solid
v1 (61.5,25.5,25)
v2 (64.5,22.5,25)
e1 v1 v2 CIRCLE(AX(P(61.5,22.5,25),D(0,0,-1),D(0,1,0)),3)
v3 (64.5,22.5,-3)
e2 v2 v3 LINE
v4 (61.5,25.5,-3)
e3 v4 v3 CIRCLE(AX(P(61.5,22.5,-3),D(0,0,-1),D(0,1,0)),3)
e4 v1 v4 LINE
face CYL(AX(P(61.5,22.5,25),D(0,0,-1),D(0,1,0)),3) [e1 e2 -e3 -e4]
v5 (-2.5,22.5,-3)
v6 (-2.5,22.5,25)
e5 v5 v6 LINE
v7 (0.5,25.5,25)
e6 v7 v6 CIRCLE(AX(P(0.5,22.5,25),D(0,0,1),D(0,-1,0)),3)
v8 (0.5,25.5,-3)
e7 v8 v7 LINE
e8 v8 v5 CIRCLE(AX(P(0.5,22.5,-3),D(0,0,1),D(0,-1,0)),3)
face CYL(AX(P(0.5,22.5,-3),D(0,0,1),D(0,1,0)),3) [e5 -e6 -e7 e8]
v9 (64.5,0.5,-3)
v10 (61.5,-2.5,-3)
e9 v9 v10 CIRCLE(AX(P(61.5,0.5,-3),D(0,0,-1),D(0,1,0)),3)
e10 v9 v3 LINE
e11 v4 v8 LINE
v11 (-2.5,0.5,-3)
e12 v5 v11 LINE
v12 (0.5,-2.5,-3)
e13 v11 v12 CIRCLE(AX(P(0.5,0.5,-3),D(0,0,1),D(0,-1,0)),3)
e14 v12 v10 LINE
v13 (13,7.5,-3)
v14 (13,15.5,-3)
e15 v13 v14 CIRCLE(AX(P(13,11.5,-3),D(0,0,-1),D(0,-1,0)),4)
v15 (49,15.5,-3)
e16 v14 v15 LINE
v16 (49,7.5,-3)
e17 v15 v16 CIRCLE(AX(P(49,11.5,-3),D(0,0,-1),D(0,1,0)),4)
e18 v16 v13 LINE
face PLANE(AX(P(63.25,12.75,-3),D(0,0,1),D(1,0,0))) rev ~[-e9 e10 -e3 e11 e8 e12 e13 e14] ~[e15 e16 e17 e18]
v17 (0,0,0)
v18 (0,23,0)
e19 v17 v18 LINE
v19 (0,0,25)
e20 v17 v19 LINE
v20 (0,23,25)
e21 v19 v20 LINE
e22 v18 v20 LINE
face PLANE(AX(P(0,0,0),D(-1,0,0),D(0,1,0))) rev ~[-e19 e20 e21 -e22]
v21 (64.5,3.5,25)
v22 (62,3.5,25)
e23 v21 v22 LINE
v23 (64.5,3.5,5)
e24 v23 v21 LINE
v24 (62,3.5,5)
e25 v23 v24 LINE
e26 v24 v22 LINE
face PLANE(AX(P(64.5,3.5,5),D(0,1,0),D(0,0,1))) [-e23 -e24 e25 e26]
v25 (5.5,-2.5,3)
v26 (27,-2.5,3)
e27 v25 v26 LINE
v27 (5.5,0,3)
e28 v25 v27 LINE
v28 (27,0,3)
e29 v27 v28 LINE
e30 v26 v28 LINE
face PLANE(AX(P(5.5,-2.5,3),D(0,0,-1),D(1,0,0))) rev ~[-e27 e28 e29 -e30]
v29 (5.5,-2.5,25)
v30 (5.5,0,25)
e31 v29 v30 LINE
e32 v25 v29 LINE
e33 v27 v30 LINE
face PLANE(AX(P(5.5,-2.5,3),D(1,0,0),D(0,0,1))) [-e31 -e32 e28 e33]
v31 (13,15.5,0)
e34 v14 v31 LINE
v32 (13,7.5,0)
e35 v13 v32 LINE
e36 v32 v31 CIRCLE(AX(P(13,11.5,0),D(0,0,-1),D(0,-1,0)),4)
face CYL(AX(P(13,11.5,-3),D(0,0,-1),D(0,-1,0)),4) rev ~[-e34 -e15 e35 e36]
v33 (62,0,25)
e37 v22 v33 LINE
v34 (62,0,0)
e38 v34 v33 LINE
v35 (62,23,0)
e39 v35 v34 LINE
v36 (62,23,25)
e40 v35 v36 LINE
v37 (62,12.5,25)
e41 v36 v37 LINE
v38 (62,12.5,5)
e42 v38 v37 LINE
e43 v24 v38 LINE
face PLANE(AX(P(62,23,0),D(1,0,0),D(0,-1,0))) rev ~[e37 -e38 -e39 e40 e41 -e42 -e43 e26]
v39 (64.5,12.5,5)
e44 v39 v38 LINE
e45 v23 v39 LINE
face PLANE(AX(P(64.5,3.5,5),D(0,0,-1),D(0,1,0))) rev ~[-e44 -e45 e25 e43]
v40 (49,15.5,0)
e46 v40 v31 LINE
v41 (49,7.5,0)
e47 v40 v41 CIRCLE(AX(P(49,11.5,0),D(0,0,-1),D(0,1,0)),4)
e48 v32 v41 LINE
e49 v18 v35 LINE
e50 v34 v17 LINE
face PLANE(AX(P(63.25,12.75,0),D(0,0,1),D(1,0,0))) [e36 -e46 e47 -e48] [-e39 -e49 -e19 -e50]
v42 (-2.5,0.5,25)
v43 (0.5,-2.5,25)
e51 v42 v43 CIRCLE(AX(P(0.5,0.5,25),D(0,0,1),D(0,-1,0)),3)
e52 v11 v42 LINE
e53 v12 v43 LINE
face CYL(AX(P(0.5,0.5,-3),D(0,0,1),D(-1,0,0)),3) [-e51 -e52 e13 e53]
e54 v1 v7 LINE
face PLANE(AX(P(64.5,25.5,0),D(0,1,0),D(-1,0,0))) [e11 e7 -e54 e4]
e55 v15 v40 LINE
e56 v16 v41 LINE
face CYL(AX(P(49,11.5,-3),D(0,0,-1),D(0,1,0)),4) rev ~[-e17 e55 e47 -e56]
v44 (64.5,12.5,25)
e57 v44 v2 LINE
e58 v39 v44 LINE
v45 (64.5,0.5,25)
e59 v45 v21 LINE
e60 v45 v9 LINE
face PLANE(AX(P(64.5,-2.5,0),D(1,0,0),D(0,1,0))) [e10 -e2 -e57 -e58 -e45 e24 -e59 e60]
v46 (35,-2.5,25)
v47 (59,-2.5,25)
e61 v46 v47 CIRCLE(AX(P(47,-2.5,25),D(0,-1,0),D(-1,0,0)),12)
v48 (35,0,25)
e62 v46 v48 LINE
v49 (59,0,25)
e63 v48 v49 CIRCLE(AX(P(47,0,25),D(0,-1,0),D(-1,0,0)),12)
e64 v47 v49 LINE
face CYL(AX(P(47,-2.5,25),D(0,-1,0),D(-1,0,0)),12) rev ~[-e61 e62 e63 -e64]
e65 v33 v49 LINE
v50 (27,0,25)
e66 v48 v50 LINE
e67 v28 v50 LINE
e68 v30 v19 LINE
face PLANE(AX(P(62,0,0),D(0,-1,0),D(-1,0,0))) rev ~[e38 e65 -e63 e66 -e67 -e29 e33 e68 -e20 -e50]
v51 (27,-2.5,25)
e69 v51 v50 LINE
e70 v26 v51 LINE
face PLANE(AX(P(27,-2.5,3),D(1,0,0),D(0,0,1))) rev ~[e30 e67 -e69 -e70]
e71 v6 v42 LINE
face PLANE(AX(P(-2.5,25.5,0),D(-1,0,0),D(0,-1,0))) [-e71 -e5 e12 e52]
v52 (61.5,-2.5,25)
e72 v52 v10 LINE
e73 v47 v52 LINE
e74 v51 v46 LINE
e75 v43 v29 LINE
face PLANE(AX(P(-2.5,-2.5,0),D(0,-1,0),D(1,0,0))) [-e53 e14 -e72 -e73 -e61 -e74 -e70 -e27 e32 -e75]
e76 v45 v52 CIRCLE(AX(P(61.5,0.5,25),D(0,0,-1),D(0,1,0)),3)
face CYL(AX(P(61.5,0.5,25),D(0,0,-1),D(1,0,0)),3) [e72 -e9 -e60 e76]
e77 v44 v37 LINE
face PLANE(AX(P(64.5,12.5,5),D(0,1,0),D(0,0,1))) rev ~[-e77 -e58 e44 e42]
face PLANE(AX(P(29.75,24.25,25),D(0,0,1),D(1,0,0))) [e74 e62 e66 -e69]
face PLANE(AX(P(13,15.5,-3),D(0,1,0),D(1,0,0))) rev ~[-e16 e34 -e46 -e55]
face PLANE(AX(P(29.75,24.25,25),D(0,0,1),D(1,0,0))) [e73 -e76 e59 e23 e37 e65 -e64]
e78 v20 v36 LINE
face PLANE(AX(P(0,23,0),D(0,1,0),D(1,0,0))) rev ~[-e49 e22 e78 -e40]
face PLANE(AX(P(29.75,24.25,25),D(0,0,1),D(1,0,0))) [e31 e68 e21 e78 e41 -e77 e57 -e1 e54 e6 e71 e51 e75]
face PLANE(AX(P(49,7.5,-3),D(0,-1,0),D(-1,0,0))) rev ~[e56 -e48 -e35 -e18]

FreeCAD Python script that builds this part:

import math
import FreeCAD as App
import Part
import Sketcher
Q = App.Units.Quantity


def edges_at(feature, points):
    """Names of the edges that pass closest to the given points."""
    edges = feature.Shape.Edges
    near = lambda p: min(range(len(edges)), key=lambda i: edges[i].distToShape(Part.Vertex(*p))[0])
    return sorted({f"Edge{near(p) + 1}" for p in points})

doc = App.newDocument("Part")
params = doc.addObject("Spreadsheet::Sheet", "Params")
for row, (alias, value) in enumerate([
    ("sketch1_width", "67 mm"),
    ("sketch1_width2", "62 mm"),
    ("sketch1_height", "28 mm"),
    ("sketch1_height2", "23 mm"),
    ("pad1_length", "25 mm"),
    ("sketch2_width", "67 mm"),
    ("sketch2_height", "28 mm"),
    ("pad2_length", "3 mm"),
    ("sketch3_radius", "4 mm"),
    ("sketch3_width", "36 mm"),
    ("pocket1_length", "25 mm"),
    ("sketch4_radius", "12 mm"),
    ("sketch4_height", "22 mm"),
    ("sketch4_width", "21.5 mm"),
    ("pocket2_length", "3 mm"),
    ("sketch5_width", "9 mm"),
    ("sketch5_height", "20 mm"),
    ("pocket3_length", "5 mm"),
    ("fillet_radius", "3 mm"),
], start=1):
    params.set(f"A{row}", alias)
    params.set(f"B{row}", "=" + value)
    params.setAlias(f"B{row}", alias)

body = doc.addObject("PartDesign::Body", "Body")

# Sketch on XY plane
sketch1 = body.newObject("Sketcher::SketchObject", "Sketch")
sketch1.AttachmentSupport = (doc.getObject("XY_Plane"), [""])
sketch1.MapMode = "FlatFace"
sketch1.addGeometry([
    Part.LineSegment(App.Vector(-2.5, 25.5, 0), App.Vector(-2.5, -2.5, 0)),  # 0
    Part.LineSegment(App.Vector(-2.5, -2.5, 0), App.Vector(64.5, -2.5, 0)),  # 1
    Part.LineSegment(App.Vector(64.5, -2.5, 0), App.Vector(64.5, 25.5, 0)),  # 2
    Part.LineSegment(App.Vector(64.5, 25.5, 0), App.Vector(-2.5, 25.5, 0)),  # 3
    Part.LineSegment(App.Vector(0, 23, 0), App.Vector(62, 23, 0)),  # 4
    Part.LineSegment(App.Vector(62, 23, 0), App.Vector(62, 0, 0)),  # 5
    Part.LineSegment(App.Vector(62, 0, 0), App.Vector(0, 0, 0)),  # 6
    Part.LineSegment(App.Vector(0, 0, 0), App.Vector(0, 23, 0)),  # 7
], False)
sketch1.addConstraint([
    Sketcher.Constraint("Coincident", 0, 2, 1, 1),
    Sketcher.Constraint("Coincident", 1, 2, 2, 1),
    Sketcher.Constraint("Coincident", 2, 2, 3, 1),
    Sketcher.Constraint("Coincident", 3, 2, 0, 1),
    Sketcher.Constraint("Coincident", 4, 2, 5, 1),
    Sketcher.Constraint("Coincident", 5, 2, 6, 1),
    Sketcher.Constraint("Coincident", 6, 2, 7, 1),
    Sketcher.Constraint("Coincident", 7, 2, 4, 1),
    Sketcher.Constraint("Vertical", 0),
    Sketcher.Constraint("Horizontal", 1),
    Sketcher.Constraint("Vertical", 2),
    Sketcher.Constraint("Horizontal", 3),
    Sketcher.Constraint("Horizontal", 4),
    Sketcher.Constraint("Vertical", 5),
    Sketcher.Constraint("Horizontal", 6),
    Sketcher.Constraint("Vertical", 7),
    Sketcher.Constraint("Coincident", 6, 2, -1, 1),
    Sketcher.Constraint("DistanceX", 1, 1, 1, 2, Q("67 mm")),
    Sketcher.Constraint("DistanceX", 4, 1, 4, 2, Q("62 mm")),
    Sketcher.Constraint("DistanceY", 0, 2, 0, 1, Q("28 mm")),
    Sketcher.Constraint("DistanceY", 5, 2, 5, 1, Q("23 mm")),
    Sketcher.Constraint("DistanceX", 0, 2, -1, 1, Q("2.5 mm")),
    Sketcher.Constraint("DistanceY", 0, 2, -1, 1, Q("2.5 mm")),
])
sketch1.setExpression("Constraints[17]", "Params.sketch1_width")
sketch1.setExpression("Constraints[18]", "Params.sketch1_width2")
sketch1.setExpression("Constraints[19]", "Params.sketch1_height")
sketch1.setExpression("Constraints[20]", "Params.sketch1_height2")
pad1 = body.newObject("PartDesign::Pad", "Pad")
pad1.Profile = sketch1
pad1.setExpression("Length", "Params.pad1_length")

# Sketch on XY plane
sketch2 = body.newObject("Sketcher::SketchObject", "Sketch001")
sketch2.AttachmentSupport = (doc.getObject("XY_Plane"), [""])
sketch2.MapMode = "FlatFace"
sketch2.addGeometry([
    Part.LineSegment(App.Vector(64.5, 25.5, 0), App.Vector(-2.5, 25.5, 0)),
    Part.LineSegment(App.Vector(-2.5, 25.5, 0), App.Vector(-2.5, -2.5, 0)),
    Part.LineSegment(App.Vector(-2.5, -2.5, 0), App.Vector(64.5, -2.5, 0)),
    Part.LineSegment(App.Vector(64.5, -2.5, 0), App.Vector(64.5, 25.5, 0)),
], False)
sketch2.addConstraint([
    Sketcher.Constraint("Coincident", 0, 2, 1, 1),
    Sketcher.Constraint("Coincident", 1, 2, 2, 1),
    Sketcher.Constraint("Coincident", 2, 2, 3, 1),
    Sketcher.Constraint("Coincident", 3, 2, 0, 1),
    Sketcher.Constraint("Horizontal", 0),
    Sketcher.Constraint("Vertical", 1),
    Sketcher.Constraint("Horizontal", 2),
    Sketcher.Constraint("Vertical", 3),
    Sketcher.Constraint("DistanceX", 0, 2, 0, 1, Q("67 mm")),
    Sketcher.Constraint("DistanceY", 1, 2, 1, 1, Q("28 mm")),
    Sketcher.Constraint("DistanceX", 0, 2, -1, 1, Q("2.5 mm")),
    Sketcher.Constraint("DistanceY", -1, 1, 0, 2, Q("25.5 mm")),
])
sketch2.setExpression("Constraints[8]", "Params.sketch2_width")
sketch2.setExpression("Constraints[9]", "Params.sketch2_height")
pad2 = body.newObject("PartDesign::Pad", "Pad001")
pad2.Profile = sketch2
pad2.setExpression("Length", "Params.pad2_length")
pad2.Reversed = True

# Sketch on XY plane
sketch3 = body.newObject("Sketcher::SketchObject", "Sketch002")
sketch3.AttachmentSupport = (doc.getObject("XY_Plane"), [""])
sketch3.MapMode = "FlatFace"
sketch3.AttachmentOffset = App.Placement(App.Vector(0, 0, -3), App.Rotation())
sketch3.addGeometry([
    Part.LineSegment(App.Vector(49, 7.5, 0), App.Vector(13, 7.5, 0)),
    Part.ArcOfCircle(Part.Circle(App.Vector(13, 11.5, 0), App.Vector(0, 0, 1), 4), math.radians(90), math.radians(270)),
    Part.LineSegment(App.Vector(13, 15.5, 0), App.Vector(49, 15.5, 0)),
    Part.ArcOfCircle(Part.Circle(App.Vector(49, 11.5, 0), App.Vector(0, 0, 1), 4), math.radians(-90), math.radians(90)),
], False)
sketch3.addConstraint([
    Sketcher.Constraint("Tangent", 0, 2, 1, 2),
    Sketcher.Constraint("Tangent", 1, 1, 2, 1),
    Sketcher.Constraint("Tangent", 2, 2, 3, 2),
    Sketcher.Constraint("Tangent", 3, 1, 0, 1),
    Sketcher.Constraint("Horizontal", 0),
    Sketcher.Constraint("Horizontal", 2),
    Sketcher.Constraint("Radius", 1, Q("4 mm")),
    Sketcher.Constraint("DistanceX", 0, 2, 0, 1, Q("36 mm")),
    Sketcher.Constraint("DistanceX", -1, 1, 1, 3, Q("13 mm")),
    Sketcher.Constraint("DistanceY", -1, 1, 1, 3, Q("11.5 mm")),
])
sketch3.setExpression("Constraints[6]", "Params.sketch3_radius")
sketch3.setExpression("Constraints[7]", "Params.sketch3_width")
pocket1 = body.newObject("PartDesign::Pocket", "Pocket")
pocket1.Profile = sketch3
pocket1.setExpression("Length", "Params.pocket1_length")
pocket1.Reversed = True

# Sketch on XZ plane
sketch4 = body.newObject("Sketcher::SketchObject", "Sketch003")
sketch4.AttachmentSupport = (doc.getObject("XZ_Plane"), [""])
sketch4.MapMode = "FlatFace"
sketch4.AttachmentOffset = App.Placement(App.Vector(0, 0, 2.5), App.Rotation())
sketch4.addGeometry([
    Part.LineSegment(App.Vector(5.5, 25, 0), App.Vector(5.5, 3, 0)),  # 0
    Part.LineSegment(App.Vector(5.5, 3, 0), App.Vector(27, 3, 0)),  # 1
    Part.LineSegment(App.Vector(27, 3, 0), App.Vector(27, 25, 0)),  # 2
    Part.LineSegment(App.Vector(27, 25, 0), App.Vector(5.5, 25, 0)),  # 3
    Part.LineSegment(App.Vector(59, 25, 0), App.Vector(35, 25, 0)),  # 4
    Part.ArcOfCircle(Part.Circle(App.Vector(47, 25, 0), App.Vector(0, 0, 1), 12), math.radians(180), math.radians(360)),  # 5
], False)
sketch4.addConstraint([
    Sketcher.Constraint("Coincident", 0, 2, 1, 1),
    Sketcher.Constraint("Coincident", 1, 2, 2, 1),
    Sketcher.Constraint("Coincident", 2, 2, 3, 1),
    Sketcher.Constraint("Coincident", 3, 2, 0, 1),
    Sketcher.Constraint("Coincident", 4, 1, 5, 2),
    Sketcher.Constraint("Coincident", 5, 1, 4, 2),
    Sketcher.Constraint("Vertical", 0),
    Sketcher.Constraint("Horizontal", 1),
    Sketcher.Constraint("Vertical", 2),
    Sketcher.Constraint("Horizontal", 3),
    Sketcher.Constraint("Horizontal", 4),
    Sketcher.Constraint("Horizontal", 5, 3, 2, 2),
    Sketcher.Constraint("Horizontal", 3, 2, 4, 1),
    Sketcher.Constraint("Radius", 5, Q("12 mm")),
    Sketcher.Constraint("DistanceY", 0, 2, 0, 1, Q("22 mm")),
    Sketcher.Constraint("DistanceX", 1, 1, 1, 2, Q("21.5 mm")),
    Sketcher.Constraint("DistanceX", -1, 1, 5, 3, Q("47 mm")),
    Sketcher.Constraint("DistanceY", -1, 1, 5, 3, Q("25 mm")),
    Sketcher.Constraint("DistanceX", -1, 1, 1, 2, Q("27 mm")),
])
sketch4.setExpression("Constraints[13]", "Params.sketch4_radius")
sketch4.setExpression("Constraints[14]", "Params.sketch4_height")
sketch4.setExpression("Constraints[15]", "Params.sketch4_width")
pocket2 = body.newObject("PartDesign::Pocket", "Pocket001")
pocket2.Profile = sketch4
pocket2.setExpression("Length", "Params.pocket2_length")

# Sketch on YZ plane
sketch5 = body.newObject("Sketcher::SketchObject", "Sketch004")
sketch5.AttachmentSupport = (doc.getObject("YZ_Plane"), [""])
sketch5.MapMode = "FlatFace"
sketch5.AttachmentOffset = App.Placement(App.Vector(0, 0, 64.5), App.Rotation())
sketch5.addGeometry([
    Part.LineSegment(App.Vector(3.5, 25, 0), App.Vector(3.5, 5, 0)),
    Part.LineSegment(App.Vector(3.5, 5, 0), App.Vector(12.5, 5, 0)),
    Part.LineSegment(App.Vector(12.5, 5, 0), App.Vector(12.5, 25, 0)),
    Part.LineSegment(App.Vector(12.5, 25, 0), App.Vector(3.5, 25, 0)),
], False)
sketch5.addConstraint([
    Sketcher.Constraint("Coincident", 0, 2, 1, 1),
    Sketcher.Constraint("Coincident", 1, 2, 2, 1),
    Sketcher.Constraint("Coincident", 2, 2, 3, 1),
    Sketcher.Constraint("Coincident", 3, 2, 0, 1),
    Sketcher.Constraint("Vertical", 0),
    Sketcher.Constraint("Horizontal", 1),
    Sketcher.Constraint("Vertical", 2),
    Sketcher.Constraint("Horizontal", 3),
    Sketcher.Constraint("DistanceX", 1, 1, 1, 2, Q("9 mm")),
    Sketcher.Constraint("DistanceY", 0, 2, 0, 1, Q("20 mm")),
    Sketcher.Constraint("DistanceY", -1, 1, 0, 2, Q("5 mm")),
    Sketcher.Constraint("DistanceX", -1, 1, 0, 2, Q("3.5 mm")),
])
sketch5.setExpression("Constraints[8]", "Params.sketch5_width")
sketch5.setExpression("Constraints[9]", "Params.sketch5_height")
pocket3 = body.newObject("PartDesign::Pocket", "Pocket002")
pocket3.Profile = sketch5
pocket3.setExpression("Length", "Params.pocket3_length")
doc.recompute()

fillet = body.newObject("PartDesign::Fillet", "Fillet")
fillet.Base = (pocket3, edges_at(pocket3, [
    (64.5, -2.5, 11),
    (64.5, 25.5, 11),
    (-2.5, 25.5, 11),
    (-2.5, -2.5, 11),
]))
fillet.setExpression("Radius", "Params.fillet_radius")

doc.recompute()
